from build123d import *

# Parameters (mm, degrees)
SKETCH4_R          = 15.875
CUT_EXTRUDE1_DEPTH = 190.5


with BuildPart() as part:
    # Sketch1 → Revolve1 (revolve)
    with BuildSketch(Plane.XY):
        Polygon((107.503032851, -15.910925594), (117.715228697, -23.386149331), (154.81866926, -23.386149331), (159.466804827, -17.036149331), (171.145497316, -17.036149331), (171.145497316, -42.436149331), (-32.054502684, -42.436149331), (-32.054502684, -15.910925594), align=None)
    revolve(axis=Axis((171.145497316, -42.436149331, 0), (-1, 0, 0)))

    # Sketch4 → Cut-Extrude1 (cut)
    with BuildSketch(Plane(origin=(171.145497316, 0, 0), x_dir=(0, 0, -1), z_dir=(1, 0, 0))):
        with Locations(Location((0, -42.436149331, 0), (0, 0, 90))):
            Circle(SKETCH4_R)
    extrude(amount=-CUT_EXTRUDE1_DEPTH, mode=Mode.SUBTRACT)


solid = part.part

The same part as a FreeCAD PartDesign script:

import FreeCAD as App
import Part
import Sketcher
Q = App.Units.Quantity


def add_polygon(sketch, points):
    """Adds a closed chain of lines whose ends are joined by coincident constraints."""
    first, n = sketch.GeometryCount, len(points)
    for a, b in zip(points, points[1:] + points[:1]):
        sketch.addGeometry(Part.LineSegment(App.Vector(*a, 0), App.Vector(*b, 0)), False)
    for i in range(n):
        sketch.addConstraint(Sketcher.Constraint("Coincident", first + i, 2, first + (i + 1) % n, 1))

doc = App.newDocument("Part")
body = doc.addObject("PartDesign::Body", "Body")

# Sketch on XY plane
sketch1 = body.newObject("Sketcher::SketchObject", "Sketch")
sketch1.AttachmentSupport = (doc.getObject("XY_Plane"), [""])
sketch1.MapMode = "FlatFace"
add_polygon(sketch1, [(118, -23), (108, -16), (-32, -16), (-32, -42), (171, -42), (171, -17), (159, -17), (155, -23)])  # lines 0-7
sketch1.addGeometry(Part.LineSegment(App.Vector(171, -42, 0), App.Vector(-32, -42, 0)), True)  # axis
sketch1.addConstraint([
    Sketcher.Constraint("Horizontal", 1),
    Sketcher.Constraint("Vertical", 2),
    Sketcher.Constraint("Horizontal", 3),
    Sketcher.Constraint("Vertical", 4),
    Sketcher.Constraint("Horizontal", 5),
    Sketcher.Constraint("Horizontal", 7),
    Sketcher.Constraint("Horizontal", 8),
    Sketcher.Constraint("Coincident", 8, 1, 3, 2),
    Sketcher.Constraint("Perpendicular", 0, 6),
    Sketcher.Constraint("Vertical", 1, 2, 8, 2),
    Sketcher.Constraint("DistanceX", 3, 1, 3, 2, Q("8 in")),
    Sketcher.Constraint("DistanceY", 4, 1, 4, 2, Q("1 in")),
    Sketcher.Constraint("DistanceY", 6, 2, 5, 2, Q("0.25 in")),
    Sketcher.Constraint("DistanceY", 2, 2, 2, 1, Q("1.0443001 in")),
    Sketcher.Constraint("DistanceX", 7, 2, 7, 1, Q("37.103441 mm")),
    Sketcher.Constraint("DistanceX", 1, 2, 1, 1, Q("139.557536 mm")),
    Sketcher.Constraint("DistanceX", 5, 2, 5, 1, Q("11.678692 mm")),
    Sketcher.Constraint("DistanceY", 2, 2, -1, 1, Q("42.436149 mm")),
    Sketcher.Constraint("DistanceX", -1, 1, 6, 2, Q("154.818669 mm")),
])
revolution = body.newObject("PartDesign::Revolution", "Revolution")
revolution.Profile = sketch1
revolution.ReferenceAxis = (sketch1, ["Axis0"])
revolution.Angle = 360

# Sketch on YZ plane
sketch2 = body.newObject("Sketcher::SketchObject", "Sketch001")
sketch2.AttachmentSupport = (doc.getObject("YZ_Plane"), [""])
sketch2.MapMode = "FlatFace"
sketch2.AttachmentOffset = App.Placement(App.Vector(0, 0, 171.145497), App.Rotation())
sketch2.addGeometry(Part.Circle(App.Vector(-42, 0, 0), App.Vector(0, 0, 1), 16), False)
sketch2.addConstraint([
    Sketcher.Constraint("PointOnObject", 0, 3, -1),
    Sketcher.Constraint("Diameter", 0, Q("1.25 in")),
    Sketcher.Constraint("DistanceX", 0, 3, -1, 1, Q("42.436149 mm")),
])
pocket1 = body.newObject("PartDesign::Pocket", "Pocket")
pocket1.Profile = sketch2
pocket1.Length = Q("7.5 in")

doc.recompute()
